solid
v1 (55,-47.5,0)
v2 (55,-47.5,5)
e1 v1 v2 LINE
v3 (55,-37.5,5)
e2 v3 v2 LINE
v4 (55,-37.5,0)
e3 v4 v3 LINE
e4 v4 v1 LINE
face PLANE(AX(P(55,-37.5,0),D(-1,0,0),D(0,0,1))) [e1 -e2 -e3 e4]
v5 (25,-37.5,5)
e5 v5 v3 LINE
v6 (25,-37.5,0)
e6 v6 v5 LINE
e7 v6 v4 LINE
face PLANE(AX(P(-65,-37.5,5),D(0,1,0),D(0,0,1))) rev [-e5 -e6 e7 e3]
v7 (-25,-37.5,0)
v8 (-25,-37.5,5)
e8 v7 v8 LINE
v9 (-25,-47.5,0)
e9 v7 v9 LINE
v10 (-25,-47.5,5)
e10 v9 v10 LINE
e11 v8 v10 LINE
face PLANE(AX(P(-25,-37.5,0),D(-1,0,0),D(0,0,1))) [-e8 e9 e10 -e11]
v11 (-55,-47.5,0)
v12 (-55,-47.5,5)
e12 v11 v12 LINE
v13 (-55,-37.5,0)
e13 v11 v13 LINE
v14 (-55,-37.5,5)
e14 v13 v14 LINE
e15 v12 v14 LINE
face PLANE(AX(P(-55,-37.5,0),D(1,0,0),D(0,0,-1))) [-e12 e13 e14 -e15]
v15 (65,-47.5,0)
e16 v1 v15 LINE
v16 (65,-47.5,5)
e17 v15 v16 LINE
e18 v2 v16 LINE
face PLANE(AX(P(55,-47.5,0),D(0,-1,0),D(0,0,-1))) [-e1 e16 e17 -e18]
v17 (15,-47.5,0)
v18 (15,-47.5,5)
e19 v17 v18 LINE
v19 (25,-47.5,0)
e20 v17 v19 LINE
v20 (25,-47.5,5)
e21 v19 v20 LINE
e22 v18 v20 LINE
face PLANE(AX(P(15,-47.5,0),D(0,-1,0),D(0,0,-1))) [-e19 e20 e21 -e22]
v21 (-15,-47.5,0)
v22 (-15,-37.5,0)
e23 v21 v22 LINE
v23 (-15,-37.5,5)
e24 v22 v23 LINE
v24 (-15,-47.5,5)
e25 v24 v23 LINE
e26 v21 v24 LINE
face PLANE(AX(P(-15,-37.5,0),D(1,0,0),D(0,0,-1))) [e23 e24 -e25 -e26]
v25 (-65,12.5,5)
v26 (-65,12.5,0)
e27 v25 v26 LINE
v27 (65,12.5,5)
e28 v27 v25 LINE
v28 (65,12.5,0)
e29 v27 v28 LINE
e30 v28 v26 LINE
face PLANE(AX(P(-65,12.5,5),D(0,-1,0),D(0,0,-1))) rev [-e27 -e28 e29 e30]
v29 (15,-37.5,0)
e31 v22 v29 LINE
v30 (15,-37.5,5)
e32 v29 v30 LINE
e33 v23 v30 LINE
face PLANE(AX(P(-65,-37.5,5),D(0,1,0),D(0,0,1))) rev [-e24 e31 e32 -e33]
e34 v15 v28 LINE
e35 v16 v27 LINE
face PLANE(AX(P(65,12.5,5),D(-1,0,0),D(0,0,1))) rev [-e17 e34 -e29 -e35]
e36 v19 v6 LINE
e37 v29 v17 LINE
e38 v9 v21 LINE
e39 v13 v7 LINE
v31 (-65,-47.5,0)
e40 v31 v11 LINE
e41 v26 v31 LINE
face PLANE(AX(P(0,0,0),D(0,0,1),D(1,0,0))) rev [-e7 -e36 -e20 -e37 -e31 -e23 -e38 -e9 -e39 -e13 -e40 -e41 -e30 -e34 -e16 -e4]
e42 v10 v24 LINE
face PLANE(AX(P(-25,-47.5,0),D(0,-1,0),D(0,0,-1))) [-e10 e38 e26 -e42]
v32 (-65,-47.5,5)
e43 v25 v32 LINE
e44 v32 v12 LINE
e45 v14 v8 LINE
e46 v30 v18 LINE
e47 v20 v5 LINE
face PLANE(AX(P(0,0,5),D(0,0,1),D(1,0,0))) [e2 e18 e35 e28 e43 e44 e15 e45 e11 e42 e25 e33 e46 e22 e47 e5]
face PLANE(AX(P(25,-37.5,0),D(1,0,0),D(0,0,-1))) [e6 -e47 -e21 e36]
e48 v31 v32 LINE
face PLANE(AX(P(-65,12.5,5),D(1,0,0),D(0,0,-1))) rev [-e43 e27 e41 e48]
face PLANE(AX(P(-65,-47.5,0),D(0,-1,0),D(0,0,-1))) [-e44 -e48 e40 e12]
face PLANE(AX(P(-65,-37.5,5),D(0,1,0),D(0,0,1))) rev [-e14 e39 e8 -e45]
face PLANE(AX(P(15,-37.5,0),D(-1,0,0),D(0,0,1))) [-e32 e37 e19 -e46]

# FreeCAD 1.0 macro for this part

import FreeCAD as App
import Part
import Sketcher


def add_polygon(sketch, points):
    """Adds a closed chain of lines whose ends are joined by coincident constraints."""
    first, n = sketch.GeometryCount, len(points)
    for a, b in zip(points, points[1:] + points[:1]):
        sketch.addGeometry(Part.LineSegment(App.Vector(*a, 0), App.Vector(*b, 0)), False)
    for i in range(n):
        sketch.addConstraint(Sketcher.Constraint("Coincident", first + i, 2, first + (i + 1) % n, 1))

doc = App.newDocument("Part")
body = doc.addObject("PartDesign::Body", "Body")

sketch1 = body.newObject("Sketcher::SketchObject", "Sketch")
sketch1.AttachmentSupport = (doc.getObject("XY_Plane"), [""])
sketch1.MapMode = "FlatFace"
add_polygon(sketch1, [(-65, 12), (-65, -38), (65, -38), (65, 12)])
sketch1.addConstraint([
    Sketcher.Constraint("Vertical", 0),
    Sketcher.Constraint("Horizontal", 1),
    Sketcher.Constraint("Vertical", 2),
    Sketcher.Constraint("Horizontal", 3),
    Sketcher.Constraint("DistanceX", 1, 1, 1, 2, 130.0),
    Sketcher.Constraint("DistanceY", 0, 2, 0, 1, 50.0),
    Sketcher.Constraint("DistanceX", 0, 2, -1, 1, 65.0),
    Sketcher.Constraint("DistanceY", 0, 2, -1, 1, 37.5),
])
pad1 = body.newObject("PartDesign::Pad", "Pad")
pad1.Profile = sketch1
pad1.Length = 5

sketch2 = body.newObject("Sketcher::SketchObject", "Sketch001")
sketch2.AttachmentSupport = (doc.getObject("XY_Plane"), [""])
sketch2.MapMode = "FlatFace"
sketch2.AttachmentOffset = App.Placement(App.Vector(0, 0, 5), App.Rotation())
add_polygon(sketch2, [(-65, -38), (-65, -48), (-55, -48), (-55, -38)])
sketch2.addConstraint([
    Sketcher.Constraint("Vertical", 0),
    Sketcher.Constraint("Horizontal", 1),
    Sketcher.Constraint("Vertical", 2),
    Sketcher.Constraint("Horizontal", 3),
    Sketcher.Constraint("Equal", 3, 0),
    Sketcher.Constraint("DistanceX", 1, 1, 1, 2, 10.0),
    Sketcher.Constraint("DistanceX", 0, 2, -1, 1, 65.0),
    Sketcher.Constraint("DistanceY", 0, 2, -1, 1, 47.5),
])
pad2 = body.newObject("PartDesign::Pad", "Pad001")
pad2.Profile = sketch2
pad2.Length = 5
pad2.Reversed = True
doc.recompute()

linearpattern = body.newObject("PartDesign::LinearPattern", "LinearPattern")
linearpattern.Originals = [pad2]
linearpattern.Direction = (doc.getObject("X_Axis"), [""])
linearpattern.Mode = "offset"
linearpattern.Offset = 40
linearpattern.Occurrences = 4
body.Tip = linearpattern

doc.recompute()
